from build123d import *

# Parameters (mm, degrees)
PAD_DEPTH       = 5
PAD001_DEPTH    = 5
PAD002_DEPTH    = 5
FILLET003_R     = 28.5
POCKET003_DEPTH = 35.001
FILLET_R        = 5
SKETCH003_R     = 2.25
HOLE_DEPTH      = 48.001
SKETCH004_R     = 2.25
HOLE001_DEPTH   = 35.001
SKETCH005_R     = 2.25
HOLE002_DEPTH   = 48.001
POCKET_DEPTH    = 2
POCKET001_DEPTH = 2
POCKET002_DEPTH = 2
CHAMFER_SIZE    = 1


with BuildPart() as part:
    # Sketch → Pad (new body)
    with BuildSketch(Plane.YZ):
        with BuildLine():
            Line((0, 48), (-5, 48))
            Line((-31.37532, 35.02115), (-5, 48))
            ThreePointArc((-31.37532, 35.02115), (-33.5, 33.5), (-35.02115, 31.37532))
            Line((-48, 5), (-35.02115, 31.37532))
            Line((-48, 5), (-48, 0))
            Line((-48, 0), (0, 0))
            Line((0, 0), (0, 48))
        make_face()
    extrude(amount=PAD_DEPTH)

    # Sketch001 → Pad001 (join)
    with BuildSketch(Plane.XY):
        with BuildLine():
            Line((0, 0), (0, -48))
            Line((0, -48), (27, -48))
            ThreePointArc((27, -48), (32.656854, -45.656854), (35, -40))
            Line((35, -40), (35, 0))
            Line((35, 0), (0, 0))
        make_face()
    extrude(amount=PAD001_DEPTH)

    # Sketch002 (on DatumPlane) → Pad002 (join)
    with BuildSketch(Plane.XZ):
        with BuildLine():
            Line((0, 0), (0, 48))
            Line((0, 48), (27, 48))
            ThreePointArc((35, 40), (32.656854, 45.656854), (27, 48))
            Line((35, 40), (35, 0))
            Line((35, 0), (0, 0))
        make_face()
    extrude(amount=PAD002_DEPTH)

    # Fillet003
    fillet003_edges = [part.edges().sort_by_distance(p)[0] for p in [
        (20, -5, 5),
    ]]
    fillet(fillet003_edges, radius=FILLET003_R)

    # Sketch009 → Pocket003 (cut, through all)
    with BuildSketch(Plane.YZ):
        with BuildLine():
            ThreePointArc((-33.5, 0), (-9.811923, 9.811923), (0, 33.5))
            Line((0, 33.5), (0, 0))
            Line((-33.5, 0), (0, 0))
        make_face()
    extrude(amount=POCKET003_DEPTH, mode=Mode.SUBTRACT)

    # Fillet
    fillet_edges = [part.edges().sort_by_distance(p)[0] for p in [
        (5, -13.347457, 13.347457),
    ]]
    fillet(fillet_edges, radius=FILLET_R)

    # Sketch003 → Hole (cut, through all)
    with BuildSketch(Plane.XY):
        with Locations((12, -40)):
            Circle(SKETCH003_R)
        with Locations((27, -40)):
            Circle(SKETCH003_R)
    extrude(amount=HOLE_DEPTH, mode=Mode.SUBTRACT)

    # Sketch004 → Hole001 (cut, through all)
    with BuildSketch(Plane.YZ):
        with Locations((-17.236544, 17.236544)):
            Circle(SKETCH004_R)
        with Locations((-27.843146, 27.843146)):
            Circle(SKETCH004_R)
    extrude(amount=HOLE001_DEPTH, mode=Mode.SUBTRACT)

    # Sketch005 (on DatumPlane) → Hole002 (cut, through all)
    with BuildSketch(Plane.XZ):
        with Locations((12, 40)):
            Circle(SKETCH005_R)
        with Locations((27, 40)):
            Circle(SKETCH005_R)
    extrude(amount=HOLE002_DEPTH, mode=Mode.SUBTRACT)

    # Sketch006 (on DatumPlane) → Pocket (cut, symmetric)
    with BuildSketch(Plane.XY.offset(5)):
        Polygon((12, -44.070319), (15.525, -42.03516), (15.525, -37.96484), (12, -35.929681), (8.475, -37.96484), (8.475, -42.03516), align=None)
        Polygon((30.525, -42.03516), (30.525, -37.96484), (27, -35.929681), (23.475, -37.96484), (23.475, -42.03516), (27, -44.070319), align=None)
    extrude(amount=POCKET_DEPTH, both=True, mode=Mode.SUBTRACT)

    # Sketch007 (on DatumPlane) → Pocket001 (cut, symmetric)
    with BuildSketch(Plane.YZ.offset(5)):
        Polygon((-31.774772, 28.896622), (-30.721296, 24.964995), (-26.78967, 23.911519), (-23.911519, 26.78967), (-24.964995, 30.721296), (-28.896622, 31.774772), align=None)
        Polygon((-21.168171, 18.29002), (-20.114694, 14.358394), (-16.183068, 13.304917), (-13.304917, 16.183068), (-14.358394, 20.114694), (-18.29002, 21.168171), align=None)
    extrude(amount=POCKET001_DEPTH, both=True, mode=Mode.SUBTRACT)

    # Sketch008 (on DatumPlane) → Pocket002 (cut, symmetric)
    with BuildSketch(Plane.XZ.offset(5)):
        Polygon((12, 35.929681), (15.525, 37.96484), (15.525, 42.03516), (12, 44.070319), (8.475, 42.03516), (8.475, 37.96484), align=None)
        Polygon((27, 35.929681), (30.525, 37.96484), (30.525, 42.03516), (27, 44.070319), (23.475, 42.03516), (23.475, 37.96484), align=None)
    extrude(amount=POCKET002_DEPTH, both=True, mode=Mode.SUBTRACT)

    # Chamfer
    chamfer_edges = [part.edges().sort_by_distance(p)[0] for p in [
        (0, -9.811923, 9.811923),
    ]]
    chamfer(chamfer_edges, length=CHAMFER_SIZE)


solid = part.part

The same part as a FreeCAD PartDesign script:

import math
import FreeCAD as App
import Part
import Sketcher

V = App.Vector
Q = App.Units.Quantity


def edges_at(feature, points):
    """Names of the edges that pass closest to the given points."""
    edges = feature.Shape.Edges
    near = lambda p: min(range(len(edges)), key=lambda i: edges[i].distToShape(Part.Vertex(*p))[0])
    return sorted({f"Edge{near(p) + 1}" for p in points})


def add_polygon(sketch, points):
    """Adds a closed chain of lines whose ends are joined by coincident constraints."""
    first, n = sketch.GeometryCount, len(points)
    for a, b in zip(points, points[1:] + points[:1]):
        sketch.addGeometry(Part.LineSegment(App.Vector(*a, 0), App.Vector(*b, 0)), False)
    for i in range(n):
        sketch.addConstraint(Sketcher.Constraint("Coincident", first + i, 2, first + (i + 1) % n, 1))

doc = App.newDocument("Part")
body = doc.addObject("PartDesign::Body", "Body")

# Sketch on YZ plane
sketch1 = body.newObject("Sketcher::SketchObject", "Sketch")
sketch1.AttachmentSupport = (doc.getObject("YZ_Plane"), [""])
sketch1.MapMode = "FlatFace"
sketch1.addGeometry([
    Part.LineSegment(V(0, 48, 0), V(-5, 48, 0)),  # 0
    Part.LineSegment(V(-5, 48, 0), V(-31, 35, 0)),  # 1
    Part.ArcOfCircle(Part.Circle(V(-28, 28, 0), V(0, 0, 1), 8), math.radians(116), math.radians(154)),  # 2
    Part.LineSegment(V(-35, 31, 0), V(-48, 5, 0)),  # 3
    Part.LineSegment(V(-48, 5, 0), V(-48, 0, 0)),  # 4
    Part.LineSegment(V(-48, 0, 0), V(0, 0, 0)),  # 5
    Part.LineSegment(V(0, 0, 0), V(0, 48, 0)),  # 6
], False)
sketch1.addConstraint([
    Sketcher.Constraint("Coincident", 0, 2, 1, 1),
    Sketcher.Constraint("Tangent", 1, 2, 2, 1),
    Sketcher.Constraint("Tangent", 2, 2, 3, 1),
    Sketcher.Constraint("Coincident", 3, 2, 4, 1),
    Sketcher.Constraint("Coincident", 4, 2, 5, 1),
    Sketcher.Constraint("Coincident", 5, 2, 6, 1),
    Sketcher.Constraint("Coincident", 6, 2, 0, 1),
    Sketcher.Constraint("Horizontal", 0),
    Sketcher.Constraint("Vertical", 4),
    Sketcher.Constraint("Horizontal", 5),
    Sketcher.Constraint("Vertical", 6),
    Sketcher.Constraint("Coincident", 5, 2, -1, 1),
    Sketcher.Constraint("Equal", 0, 4),
    Sketcher.Constraint("Equal", 5, 6),
    Sketcher.Constraint("Equal", 1, 3),
    Sketcher.Constraint("Radius", 2, 8.0),
    Sketcher.Constraint("DistanceX", 0, 2, 0, 1, 5.0),
    Sketcher.Constraint("DistanceX", 5, 1, 5, 2, 48.0),
    Sketcher.Constraint("DistanceX", 1, 2, -1, 1, 31.37532),
])
pad1 = body.newObject("PartDesign::Pad", "Pad")
pad1.Profile = sketch1
pad1.Length = 5

# Sketch on XY plane
sketch2 = body.newObject("Sketcher::SketchObject", "Sketch001")
sketch2.AttachmentSupport = (doc.getObject("XY_Plane"), [""])
sketch2.MapMode = "FlatFace"
sketch2.addGeometry([
    Part.LineSegment(V(0, 0, 0), V(0, -48, 0)),  # 0
    Part.LineSegment(V(0, -48, 0), V(27, -48, 0)),  # 1
    Part.ArcOfCircle(Part.Circle(V(27, -40, 0), V(0, 0, 1), 8), math.radians(-90), math.radians(0)),  # 2
    Part.LineSegment(V(35, -40, 0), V(35, 0, 0)),  # 3
    Part.LineSegment(V(35, 0, 0), V(0, 0, 0)),  # 4
], False)
sketch2.addConstraint([
    Sketcher.Constraint("Coincident", 0, 2, 1, 1),
    Sketcher.Constraint("Tangent", 1, 2, 2, 1),
    Sketcher.Constraint("Tangent", 2, 2, 3, 1),
    Sketcher.Constraint("Coincident", 3, 2, 4, 1),
    Sketcher.Constraint("Coincident", 4, 2, 0, 1),
    Sketcher.Constraint("Vertical", 0),
    Sketcher.Constraint("Horizontal", 1),
    Sketcher.Constraint("Vertical", 3),
    Sketcher.Constraint("Horizontal", 4),
    Sketcher.Constraint("Coincident", 4, 2, -1, 1),
    Sketcher.Constraint("Radius", 2, 8.000001),
    Sketcher.Constraint("DistanceX", 1, 1, 1, 2, 27.0),
    Sketcher.Constraint("DistanceY", 0, 2, 0, 1, 48.0),
])
pad2 = body.newObject("PartDesign::Pad", "Pad001")
pad2.Profile = sketch2
pad2.Length = 5

# Sketch on XZ plane
sketch3 = body.newObject("Sketcher::SketchObject", "Sketch002")
sketch3.AttachmentSupport = (doc.getObject("XZ_Plane"), [""])
sketch3.MapMode = "FlatFace"
sketch3.addGeometry([
    Part.LineSegment(V(0, 48, 0), V(0, 0, 0)),  # 0
    Part.LineSegment(V(0, 0, 0), V(35, 0, 0)),  # 1
    Part.LineSegment(V(35, 0, 0), V(35, 40, 0)),  # 2
    Part.ArcOfCircle(Part.Circle(V(27, 40, 0), V(0, 0, 1), 8), math.radians(0), math.radians(90)),  # 3
    Part.LineSegment(V(27, 48, 0), V(0, 48, 0)),  # 4
], False)
sketch3.addConstraint([
    Sketcher.Constraint("Coincident", 0, 2, 1, 1),
    Sketcher.Constraint("Coincident", 1, 2, 2, 1),
    Sketcher.Constraint("Tangent", 2, 2, 3, 1),
    Sketcher.Constraint("Tangent", 3, 2, 4, 1),
    Sketcher.Constraint("Coincident", 4, 2, 0, 1),
    Sketcher.Constraint("Vertical", 0),
    Sketcher.Constraint("Horizontal", 1),
    Sketcher.Constraint("Vertical", 2),
    Sketcher.Constraint("Horizontal", 4),
    Sketcher.Constraint("Coincident", 0, 2, -1, 1),
    Sketcher.Constraint("Radius", 3, 8.000001),
    Sketcher.Constraint("DistanceX", 1, 1, 1, 2, 35.0),
    Sketcher.Constraint("DistanceY", 0, 2, 0, 1, 48.0),
])
pad3 = body.newObject("PartDesign::Pad", "Pad002")
pad3.Profile = sketch3
pad3.Length = 5
doc.recompute()

fillet = body.newObject("PartDesign::Fillet", "Fillet")
fillet.Base = (pad3, edges_at(pad3, [(20, -5, 5)]))
fillet.Radius = 28.5

# Sketch on YZ plane
sketch4 = body.newObject("Sketcher::SketchObject", "Sketch003")
sketch4.AttachmentSupport = (doc.getObject("YZ_Plane"), [""])
sketch4.MapMode = "FlatFace"
sketch4.addGeometry([
    Part.ArcOfCircle(Part.Circle(V(-34, 34, 0), V(0, 0, 1), 34), math.radians(-90), math.radians(0)),
    Part.LineSegment(V(-34, 0, 0), V(0, 0, 0)),
    Part.LineSegment(V(0, 0, 0), V(0, 34, 0)),
], False)
sketch4.addConstraint([
    Sketcher.Constraint("Tangent", 0, 1, 1, 1),
    Sketcher.Constraint("Coincident", 1, 2, 2, 1),
    Sketcher.Constraint("Tangent", 2, 2, 0, 2),
    Sketcher.Constraint("Horizontal", 1),
    Sketcher.Constraint("Vertical", 2),
    Sketcher.Constraint("Coincident", 1, 2, -1, 1),
    Sketcher.Constraint("Radius", 0, 33.500001),
])
pocket1 = body.newObject("PartDesign::Pocket", "Pocket")
pocket1.Profile = sketch4
pocket1.Type = "ThroughAll"
pocket1.Reversed = True
doc.recompute()

fillet2 = body.newObject("PartDesign::Fillet", "Fillet001")
fillet2.Base = (pocket1, edges_at(pocket1, [(5, -13.347, 13.347)]))
fillet2.Radius = 5

# Sketch on XY plane
sketch5 = body.newObject("Sketcher::SketchObject", "Sketch004")
sketch5.AttachmentSupport = (doc.getObject("XY_Plane"), [""])
sketch5.MapMode = "FlatFace"
sketch5.addGeometry([
    Part.Circle(V(12, -40, 0), V(0, 0, 1), 2.2),
    Part.Circle(V(27, -40, 0), V(0, 0, 1), 2.2),
], False)
sketch5.addConstraint([
    Sketcher.Constraint("Equal", 0, 1),
    Sketcher.Constraint("Horizontal", 0, 3, 1, 3),
    Sketcher.Constraint("Diameter", 0, 4.5),
    Sketcher.Constraint("DistanceX", -1, 1, 0, 3, 12.0),
    Sketcher.Constraint("DistanceY", 0, 3, -1, 1, 40.0),
    Sketcher.Constraint("DistanceX", -1, 1, 1, 3, 27.0),
])
pocket2 = body.newObject("PartDesign::Pocket", "Pocket001")
pocket2.Profile = sketch5
pocket2.Type = "ThroughAll"
pocket2.Reversed = True

# Sketch on YZ plane
sketch6 = body.newObject("Sketcher::SketchObject", "Sketch005")
sketch6.AttachmentSupport = (doc.getObject("YZ_Plane"), [""])
sketch6.MapMode = "FlatFace"
sketch6.addGeometry([
    Part.Circle(V(-17.2, 17.2, 0), V(0, 0, 1), 2.2),
    Part.Circle(V(-27.8, 27.8, 0), V(0, 0, 1), 2.2),
], False)
sketch6.addConstraint([
    Sketcher.Constraint("Equal", 0, 1),
    Sketcher.Constraint("Diameter", 0, 4.5),
    Sketcher.Constraint("DistanceX", 0, 3, -1, 1, 17.236544),
    Sketcher.Constraint("DistanceY", -1, 1, 0, 3, 17.236544),
    Sketcher.Constraint("DistanceX", 1, 3, -1, 1, 27.843146),
    Sketcher.Constraint("DistanceY", -1, 1, 1, 3, 27.843146),
])
pocket3 = body.newObject("PartDesign::Pocket", "Pocket002")
pocket3.Profile = sketch6
pocket3.Type = "ThroughAll"
pocket3.Reversed = True

# Sketch on XZ plane
sketch7 = body.newObject("Sketcher::SketchObject", "Sketch006")
sketch7.AttachmentSupport = (doc.getObject("XZ_Plane"), [""])
sketch7.MapMode = "FlatFace"
sketch7.addGeometry([
    Part.Circle(V(12, 40, 0), V(0, 0, 1), 2.2),
    Part.Circle(V(27, 40, 0), V(0, 0, 1), 2.2),
], False)
sketch7.addConstraint([
    Sketcher.Constraint("Equal", 0, 1),
    Sketcher.Constraint("Horizontal", 0, 3, 1, 3),
    Sketcher.Constraint("Diameter", 0, 4.5),
    Sketcher.Constraint("DistanceX", -1, 1, 0, 3, 12.0),
    Sketcher.Constraint("DistanceY", -1, 1, 0, 3, 40.0),
    Sketcher.Constraint("DistanceX", -1, 1, 1, 3, 27.0),
])
pocket4 = body.newObject("PartDesign::Pocket", "Pocket003")
pocket4.Profile = sketch7
pocket4.Type = "ThroughAll"
pocket4.Reversed = True

# Sketch on XY plane
sketch8 = body.newObject("Sketcher::SketchObject", "Sketch007")
sketch8.AttachmentSupport = (doc.getObject("XY_Plane"), [""])
sketch8.MapMode = "FlatFace"
sketch8.AttachmentOffset = App.Placement(V(0, 0, 5), App.Rotation())
add_polygon(sketch8, [(12, -44.1), (15.5, -42), (15.5, -38), (12, -35.9), (8.5, -38), (8.5, -42)])  # lines 0-5
add_polygon(sketch8, [(30.5, -42), (30.5, -38), (27, -35.9), (23.5, -38), (23.5, -42), (27, -44.1)])  # lines 6-11
sketch8.addConstraint([
    Sketcher.Constraint("Vertical", 1),
    Sketcher.Constraint("Vertical", 4),
    Sketcher.Constraint("Vertical", 6),
    Sketcher.Constraint("Vertical", 9),
    Sketcher.Constraint("Parallel", 0, 3),
    Sketcher.Constraint("Parallel", 2, 5),
    Sketcher.Constraint("Parallel", 5, 7),
    Sketcher.Constraint("Parallel", 3, 8),
    Sketcher.Constraint("Parallel", 7, 10),
    Sketcher.Constraint("Parallel", 8, 11),
    Sketcher.Constraint("Horizontal", 1, 2, 3, 2),
    Sketcher.Constraint("Horizontal", 0, 2, 4, 2),
    Sketcher.Constraint("Horizontal", 3, 2, 6, 2),
    Sketcher.Constraint("Horizontal", 2, 2, 7, 2),
    Sketcher.Constraint("Horizontal", 6, 2, 8, 2),
    Sketcher.Constraint("Horizontal", 4, 2, 9, 2),
    Sketcher.Constraint("Horizontal", 5, 2, 10, 2),
    Sketcher.Constraint("Vertical", 2, 2, 5, 2),
    Sketcher.Constraint("Angle", 0, Q("29.999991 deg")),
    Sketcher.Constraint("DistanceX", -1, 1, 2, 2, 12.0),
    Sketcher.Constraint("DistanceX", -1, 1, 7, 2, 27.0),
    Sketcher.Constraint("DistanceX", 3, 2, 1, 2, 7.05),
    Sketcher.Constraint("DistanceY", 1, 1, 1, 2, 4.07032),
    Sketcher.Constraint("DistanceY", 0, 2, -1, 1, 42.03516),
])
pocket5 = body.newObject("PartDesign::Pocket", "Pocket004")
pocket5.Profile = sketch8
pocket5.Length = 4
pocket5.Midplane = True

# Sketch on YZ plane
sketch9 = body.newObject("Sketcher::SketchObject", "Sketch008")
sketch9.AttachmentSupport = (doc.getObject("YZ_Plane"), [""])
sketch9.MapMode = "FlatFace"
sketch9.AttachmentOffset = App.Placement(V(0, 0, 5), App.Rotation())
add_polygon(sketch9, [(-31.8, 28.9), (-30.7, 25), (-26.8, 23.9), (-23.9, 26.8), (-25, 30.7), (-28.9, 31.8)])  # lines 0-5
add_polygon(sketch9, [(-21.2, 18.3), (-20.1, 14.4), (-16.2, 13.3), (-13.3, 16.2), (-14.4, 20.1), (-18.3, 21.2)])  # lines 6-11
sketch9.addConstraint([
    Sketcher.Constraint("Parallel", 0, 3),
    Sketcher.Constraint("Parallel", 1, 4),
    Sketcher.Constraint("Parallel", 2, 5),
    Sketcher.Constraint("Parallel", 3, 6),
    Sketcher.Constraint("Parallel", 4, 7),
    Sketcher.Constraint("Parallel", 5, 8),
    Sketcher.Constraint("Parallel", 6, 9),
    Sketcher.Constraint("Parallel", 7, 10),
    Sketcher.Constraint("Parallel", 8, 11),
    Sketcher.Constraint("Equal", 0, 1),
    Sketcher.Constraint("Equal", 1, 2),
    Sketcher.Constraint("Equal", 2, 3),
    Sketcher.Constraint("Equal", 5, 6),
    Sketcher.Constraint("Equal", 6, 7),
    Sketcher.Constraint("Equal", 7, 8),
    Sketcher.Constraint("Equal", 8, 9),
    Sketcher.Constraint("Angle", 0, Q("-75.000004 deg")),
    Sketcher.Constraint("Angle", 1, Q("-15 deg")),
    Sketcher.Constraint("Angle", 2, Q("45 deg")),
    Sketcher.Constraint("DistanceX", 0, 2, 3, 2, 5.756301),
    Sketcher.Constraint("DistanceX", 0, 2, 6, 2, 10.606602),
    Sketcher.Constraint("DistanceY", 6, 2, 0, 2, 10.606601),
    Sketcher.Constraint("DistanceX", 1, 2, -1, 1, 26.78967),
    Sketcher.Constraint("DistanceY", -1, 1, 1, 2, 23.911519),
])
pocket6 = body.newObject("PartDesign::Pocket", "Pocket005")
pocket6.Profile = sketch9
pocket6.Length = 4
pocket6.Midplane = True

# Sketch on XZ plane
sketch10 = body.newObject("Sketcher::SketchObject", "Sketch009")
sketch10.AttachmentSupport = (doc.getObject("XZ_Plane"), [""])
sketch10.MapMode = "FlatFace"
sketch10.AttachmentOffset = App.Placement(V(0, 0, 5), App.Rotation())
add_polygon(sketch10, [(12, 35.9), (15.5, 38), (15.5, 42), (12, 44.1), (8.5, 42), (8.5, 38)])  # lines 0-5
add_polygon(sketch10, [(27, 35.9), (30.5, 38), (30.5, 42), (27, 44.1), (23.5, 42), (23.5, 38)])  # lines 6-11
sketch10.addConstraint([
    Sketcher.Constraint("Vertical", 1),
    Sketcher.Constraint("Vertical", 4),
    Sketcher.Constraint("Vertical", 7),
    Sketcher.Constraint("Vertical", 10),
    Sketcher.Constraint("Parallel", 0, 3),
    Sketcher.Constraint("Parallel", 2, 5),
    Sketcher.Constraint("Parallel", 3, 6),
    Sketcher.Constraint("Parallel", 5, 8),
    Sketcher.Constraint("Parallel", 6, 9),
    Sketcher.Constraint("Parallel", 8, 11),
    Sketcher.Constraint("Horizontal", 1, 2, 3, 2),
    Sketcher.Constraint("Horizontal", 0, 2, 4, 2),
    Sketcher.Constraint("Horizontal", 4, 2, 6, 2),
    Sketcher.Constraint("Horizontal", 3, 2, 7, 2),
    Sketcher.Constraint("Horizontal", 2, 2, 8, 2),
    Sketcher.Constraint("Horizontal", 7, 2, 9, 2),
    Sketcher.Constraint("Horizontal", 6, 2, 10, 2),
    Sketcher.Constraint("Vertical", 2, 2, 5, 2),
    Sketcher.Constraint("Angle", 0, Q("29.999991 deg")),
    Sketcher.Constraint("DistanceX", -1, 1, 2, 2, 12.0),
    Sketcher.Constraint("DistanceX", -1, 1, 8, 2, 27.0),
    Sketcher.Constraint("DistanceX", 3, 2, 1, 2, 7.05),
    Sketcher.Constraint("DistanceY", 1, 1, 1, 2, 4.07032),
    Sketcher.Constraint("DistanceY", -1, 1, 0, 2, 37.96484),
])
pocket7 = body.newObject("PartDesign::Pocket", "Pocket006")
pocket7.Profile = sketch10
pocket7.Length = 4
pocket7.Midplane = True
doc.recompute()

chamfer = body.newObject("PartDesign::Chamfer", "Chamfer")
chamfer.Base = (pocket7, edges_at(pocket7, [(0, -9.812, 9.812)]))
chamfer.Size = 1

doc.recompute()
